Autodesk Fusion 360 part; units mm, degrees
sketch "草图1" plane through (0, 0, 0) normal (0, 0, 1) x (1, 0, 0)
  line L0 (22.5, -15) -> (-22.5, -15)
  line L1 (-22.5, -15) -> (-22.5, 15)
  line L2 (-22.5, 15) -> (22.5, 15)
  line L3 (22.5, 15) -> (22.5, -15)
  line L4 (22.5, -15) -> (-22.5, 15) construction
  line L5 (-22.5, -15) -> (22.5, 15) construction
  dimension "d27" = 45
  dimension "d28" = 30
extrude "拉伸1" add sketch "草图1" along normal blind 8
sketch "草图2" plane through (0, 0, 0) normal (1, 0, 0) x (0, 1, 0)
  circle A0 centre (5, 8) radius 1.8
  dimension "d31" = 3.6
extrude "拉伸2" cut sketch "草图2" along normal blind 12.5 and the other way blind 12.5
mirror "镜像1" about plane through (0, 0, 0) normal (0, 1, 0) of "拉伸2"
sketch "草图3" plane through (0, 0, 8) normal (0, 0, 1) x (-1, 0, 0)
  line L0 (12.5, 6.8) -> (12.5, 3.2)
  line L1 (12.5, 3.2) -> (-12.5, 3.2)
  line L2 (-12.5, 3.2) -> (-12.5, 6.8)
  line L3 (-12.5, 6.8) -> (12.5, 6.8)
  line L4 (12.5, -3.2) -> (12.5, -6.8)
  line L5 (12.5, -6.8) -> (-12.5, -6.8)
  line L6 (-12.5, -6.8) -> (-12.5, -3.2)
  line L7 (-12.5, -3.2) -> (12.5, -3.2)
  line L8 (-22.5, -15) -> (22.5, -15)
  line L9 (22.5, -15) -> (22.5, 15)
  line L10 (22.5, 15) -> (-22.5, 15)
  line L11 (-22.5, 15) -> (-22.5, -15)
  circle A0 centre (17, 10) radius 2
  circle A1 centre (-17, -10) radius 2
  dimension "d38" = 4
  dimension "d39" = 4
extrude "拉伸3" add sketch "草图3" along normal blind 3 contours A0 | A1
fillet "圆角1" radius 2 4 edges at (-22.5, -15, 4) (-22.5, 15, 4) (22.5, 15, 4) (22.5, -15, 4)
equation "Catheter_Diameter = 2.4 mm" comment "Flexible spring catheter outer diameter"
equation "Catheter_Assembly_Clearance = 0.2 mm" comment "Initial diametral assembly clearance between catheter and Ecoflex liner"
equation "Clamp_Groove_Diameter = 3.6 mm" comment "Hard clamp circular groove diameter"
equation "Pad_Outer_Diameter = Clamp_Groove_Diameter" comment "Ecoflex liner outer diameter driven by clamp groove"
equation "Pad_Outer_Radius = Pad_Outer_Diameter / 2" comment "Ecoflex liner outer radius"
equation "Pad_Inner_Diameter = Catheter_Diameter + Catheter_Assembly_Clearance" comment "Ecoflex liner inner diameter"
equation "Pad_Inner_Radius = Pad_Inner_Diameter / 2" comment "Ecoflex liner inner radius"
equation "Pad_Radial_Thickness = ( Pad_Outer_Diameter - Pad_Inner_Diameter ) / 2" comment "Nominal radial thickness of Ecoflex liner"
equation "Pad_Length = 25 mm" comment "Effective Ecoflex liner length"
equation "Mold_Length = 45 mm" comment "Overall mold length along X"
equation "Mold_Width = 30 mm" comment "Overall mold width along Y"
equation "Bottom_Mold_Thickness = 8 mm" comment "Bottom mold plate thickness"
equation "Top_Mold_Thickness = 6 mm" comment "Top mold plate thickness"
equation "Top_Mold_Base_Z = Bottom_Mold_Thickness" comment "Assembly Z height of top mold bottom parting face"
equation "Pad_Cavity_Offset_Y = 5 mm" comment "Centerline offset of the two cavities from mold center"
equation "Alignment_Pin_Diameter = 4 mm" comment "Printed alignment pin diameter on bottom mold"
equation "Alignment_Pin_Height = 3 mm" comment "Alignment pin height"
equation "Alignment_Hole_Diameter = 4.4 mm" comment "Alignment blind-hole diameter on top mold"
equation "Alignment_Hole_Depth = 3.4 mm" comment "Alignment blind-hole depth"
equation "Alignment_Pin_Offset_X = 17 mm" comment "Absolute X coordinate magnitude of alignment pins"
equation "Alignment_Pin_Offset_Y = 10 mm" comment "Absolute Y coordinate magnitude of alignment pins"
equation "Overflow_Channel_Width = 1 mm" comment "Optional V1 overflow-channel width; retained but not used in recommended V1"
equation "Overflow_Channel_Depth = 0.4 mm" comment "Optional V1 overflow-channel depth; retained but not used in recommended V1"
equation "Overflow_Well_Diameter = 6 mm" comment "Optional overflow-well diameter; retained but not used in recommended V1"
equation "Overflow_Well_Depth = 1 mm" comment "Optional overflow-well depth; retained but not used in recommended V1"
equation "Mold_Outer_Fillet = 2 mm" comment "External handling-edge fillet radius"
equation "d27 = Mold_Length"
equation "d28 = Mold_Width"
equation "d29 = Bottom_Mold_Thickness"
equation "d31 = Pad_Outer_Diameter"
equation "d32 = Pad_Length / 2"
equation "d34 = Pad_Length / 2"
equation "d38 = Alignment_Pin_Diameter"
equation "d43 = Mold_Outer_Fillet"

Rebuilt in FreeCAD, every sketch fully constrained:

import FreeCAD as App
import Part
import Sketcher

V = App.Vector


def edges_at(feature, points):
    """Names of the edges that pass closest to the given points."""
    edges = feature.Shape.Edges
    near = lambda p: min(range(len(edges)), key=lambda i: edges[i].distToShape(Part.Vertex(*p))[0])
    return sorted({f"Edge{near(p) + 1}" for p in points})

doc = App.newDocument("Part")
body = doc.addObject("PartDesign::Body", "Body")

# Sketch on XY plane
sketch1 = body.newObject("Sketcher::SketchObject", "Sketch")
sketch1.AttachmentSupport = (doc.getObject("XY_Plane"), [""])
sketch1.MapMode = "FlatFace"
sketch1.addGeometry([
    Part.LineSegment(V(-22, -15, 0), V(22, -15, 0)),
    Part.LineSegment(V(22, -15, 0), V(22, 15, 0)),
    Part.LineSegment(V(22, 15, 0), V(-22, 15, 0)),
    Part.LineSegment(V(-22, 15, 0), V(-22, -15, 0)),
], False)
sketch1.addConstraint([
    Sketcher.Constraint("Coincident", 0, 2, 1, 1),
    Sketcher.Constraint("Coincident", 1, 2, 2, 1),
    Sketcher.Constraint("Coincident", 2, 2, 3, 1),
    Sketcher.Constraint("Coincident", 3, 2, 0, 1),
    Sketcher.Constraint("Horizontal", 0),
    Sketcher.Constraint("Vertical", 1),
    Sketcher.Constraint("Horizontal", 2),
    Sketcher.Constraint("Vertical", 3),
    Sketcher.Constraint("Symmetric", 0, 2, 2, 2, -1, 1),
    Sketcher.Constraint("DistanceX", 0, 1, 0, 2, 45.0),
    Sketcher.Constraint("DistanceY", 1, 1, 1, 2, 30.0),
])
pad1 = body.newObject("PartDesign::Pad", "Pad")
pad1.Profile = sketch1
pad1.Length = 8

# Sketch on YZ plane
sketch2 = body.newObject("Sketcher::SketchObject", "Sketch001")
sketch2.AttachmentSupport = (doc.getObject("YZ_Plane"), [""])
sketch2.MapMode = "FlatFace"
sketch2.addGeometry(Part.Circle(V(5, 8, 0), V(0, 0, 1), 1.8), False)
sketch2.addConstraint([
    Sketcher.Constraint("Diameter", 0, 3.6),
    Sketcher.Constraint("DistanceX", -1, 1, 0, 3, 5.0),
    Sketcher.Constraint("DistanceY", -1, 1, 0, 3, 8.0),
])
pocket1 = body.newObject("PartDesign::Pocket", "Pocket")
pocket1.Profile = sketch2
pocket1.Type = "TwoLengths"
pocket1.Length = 12.5
pocket1.Length2 = 12.5
pocket1.Reversed = True
doc.recompute()

mirrored = body.newObject("PartDesign::Mirrored", "Mirrored")
mirrored.Originals = [pocket1]
mirrored.MirrorPlane = (doc.getObject("XZ_Plane"), [""])
body.Tip = mirrored

# Sketch on XY plane
sketch3 = body.newObject("Sketcher::SketchObject", "Sketch002")
sketch3.AttachmentSupport = (doc.getObject("XY_Plane"), [""])
sketch3.MapMode = "FlatFace"
sketch3.AttachmentOffset = App.Placement(V(0, 0, 8), App.Rotation())
sketch3.addGeometry([
    Part.Circle(V(-17, -10, 0), V(0, 0, 1), 2),
    Part.Circle(V(17, 10, 0), V(0, 0, 1), 2),
], False)
sketch3.addConstraint([
    Sketcher.Constraint("Equal", 0, 1),
    Sketcher.Constraint("Symmetric", 0, 3, 1, 3, -1, 1),
    Sketcher.Constraint("Diameter", 0, 4.0),
    Sketcher.Constraint("DistanceX", 0, 3, -1, 1, 17.0),
    Sketcher.Constraint("DistanceY", 0, 3, -1, 1, 10.0),
])
pad2 = body.newObject("PartDesign::Pad", "Pad001")
pad2.Profile = sketch3
pad2.Length = 3
doc.recompute()

fillet = body.newObject("PartDesign::Fillet", "Fillet")
fillet.Base = (pad2, edges_at(pad2, [
    (-22.5, -15, 4),
    (-22.5, 15, 4),
    (22.5, 15, 4),
    (22.5, -15, 4),
]))
fillet.Radius = 2

doc.recompute()
